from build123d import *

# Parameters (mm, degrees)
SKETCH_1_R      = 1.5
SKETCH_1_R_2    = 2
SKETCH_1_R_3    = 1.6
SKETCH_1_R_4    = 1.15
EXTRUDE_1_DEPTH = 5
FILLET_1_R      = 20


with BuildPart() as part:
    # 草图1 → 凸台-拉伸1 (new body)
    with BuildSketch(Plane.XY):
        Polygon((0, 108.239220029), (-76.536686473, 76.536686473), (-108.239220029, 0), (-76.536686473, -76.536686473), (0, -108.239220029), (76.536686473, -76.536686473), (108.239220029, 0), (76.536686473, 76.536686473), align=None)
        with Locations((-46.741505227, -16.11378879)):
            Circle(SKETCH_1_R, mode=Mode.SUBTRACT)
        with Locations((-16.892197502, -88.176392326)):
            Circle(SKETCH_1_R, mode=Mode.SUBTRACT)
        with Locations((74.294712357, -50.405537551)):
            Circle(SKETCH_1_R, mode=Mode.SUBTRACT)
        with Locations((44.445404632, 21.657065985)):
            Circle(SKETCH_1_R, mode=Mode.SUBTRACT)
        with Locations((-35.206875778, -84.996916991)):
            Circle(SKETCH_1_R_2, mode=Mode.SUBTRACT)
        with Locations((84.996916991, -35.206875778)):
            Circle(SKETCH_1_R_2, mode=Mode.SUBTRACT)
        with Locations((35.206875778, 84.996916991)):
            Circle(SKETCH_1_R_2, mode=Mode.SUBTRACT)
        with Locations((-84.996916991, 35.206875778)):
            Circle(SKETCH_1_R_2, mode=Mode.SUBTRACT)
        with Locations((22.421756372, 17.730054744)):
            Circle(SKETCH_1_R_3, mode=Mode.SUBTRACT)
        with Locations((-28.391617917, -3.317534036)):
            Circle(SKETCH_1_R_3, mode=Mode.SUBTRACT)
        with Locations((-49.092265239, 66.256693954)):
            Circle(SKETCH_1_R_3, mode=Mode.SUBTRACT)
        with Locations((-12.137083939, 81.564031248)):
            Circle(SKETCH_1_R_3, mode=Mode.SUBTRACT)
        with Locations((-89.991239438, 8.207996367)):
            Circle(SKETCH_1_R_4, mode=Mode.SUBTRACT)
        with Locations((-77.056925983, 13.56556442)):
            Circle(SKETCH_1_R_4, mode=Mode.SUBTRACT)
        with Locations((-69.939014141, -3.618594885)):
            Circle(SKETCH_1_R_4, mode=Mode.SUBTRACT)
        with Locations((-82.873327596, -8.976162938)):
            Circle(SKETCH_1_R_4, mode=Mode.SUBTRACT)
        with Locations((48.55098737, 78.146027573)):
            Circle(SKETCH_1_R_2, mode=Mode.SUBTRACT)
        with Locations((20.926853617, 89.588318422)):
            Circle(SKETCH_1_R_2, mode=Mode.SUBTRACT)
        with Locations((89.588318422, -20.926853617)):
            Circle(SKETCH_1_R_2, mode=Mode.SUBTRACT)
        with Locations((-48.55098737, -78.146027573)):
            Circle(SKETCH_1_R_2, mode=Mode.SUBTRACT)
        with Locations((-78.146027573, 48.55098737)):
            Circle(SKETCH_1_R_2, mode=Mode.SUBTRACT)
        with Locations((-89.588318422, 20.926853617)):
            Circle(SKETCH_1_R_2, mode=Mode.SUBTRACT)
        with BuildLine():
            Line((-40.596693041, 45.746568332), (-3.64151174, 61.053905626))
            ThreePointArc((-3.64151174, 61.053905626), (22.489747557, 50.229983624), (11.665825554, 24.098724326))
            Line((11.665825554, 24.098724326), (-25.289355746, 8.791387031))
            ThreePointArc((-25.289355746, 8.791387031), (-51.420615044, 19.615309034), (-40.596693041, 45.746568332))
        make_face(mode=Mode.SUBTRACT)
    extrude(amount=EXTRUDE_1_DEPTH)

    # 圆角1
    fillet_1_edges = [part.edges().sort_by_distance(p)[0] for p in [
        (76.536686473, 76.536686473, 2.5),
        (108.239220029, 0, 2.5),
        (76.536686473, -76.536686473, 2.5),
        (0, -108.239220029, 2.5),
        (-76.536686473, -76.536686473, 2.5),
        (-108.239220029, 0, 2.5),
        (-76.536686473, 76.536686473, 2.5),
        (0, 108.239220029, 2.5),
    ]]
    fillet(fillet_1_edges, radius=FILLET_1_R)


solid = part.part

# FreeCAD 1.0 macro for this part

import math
import FreeCAD as App
import Part
import Sketcher
from FreeCAD import Vector
Q = App.Units.Quantity


def edges_at(feature, points):
    """Names of the edges that pass closest to the given points."""
    edges = feature.Shape.Edges
    near = lambda p: min(range(len(edges)), key=lambda i: edges[i].distToShape(Part.Vertex(*p))[0])
    return sorted({f"Edge{near(p) + 1}" for p in points})

doc = App.newDocument("Part")
body = doc.addObject("PartDesign::Body", "Body")

sketch1 = body.newObject("Sketcher::SketchObject", "Sketch")
sketch1.AttachmentSupport = (doc.getObject("XY_Plane"), [""])
sketch1.MapMode = "FlatFace"
sketch1.addGeometry(Part.LineSegment(Vector(0, 108.2, 0), Vector(-76.5, 76.5, 0)), False)
sketch1.addGeometry(Part.LineSegment(Vector(-76.5, 76.5, 0), Vector(-108.2, 0, 0)), False)
sketch1.addGeometry(Part.LineSegment(Vector(-108.2, 0, 0), Vector(-76.5, -76.5, 0)), False)
sketch1.addGeometry(Part.LineSegment(Vector(-76.5, -76.5, 0), Vector(0, -108.2, 0)), False)
sketch1.addGeometry(Part.LineSegment(Vector(0, -108.2, 0), Vector(76.5, -76.5, 0)), False)
sketch1.addGeometry(Part.LineSegment(Vector(76.5, -76.5, 0), Vector(108.2, 0, 0)), False)
sketch1.addGeometry(Part.LineSegment(Vector(108.2, 0, 0), Vector(76.5, 76.5, 0)), False)
sketch1.addGeometry(Part.LineSegment(Vector(76.5, 76.5, 0), Vector(0, 108.2, 0)), False)
sketch1.addGeometry(Part.Circle(Vector(-48.6, -78.1, 0), Vector(0, 0, 1), 2), False)
sketch1.addGeometry(Part.Circle(Vector(-35.2, -85, 0), Vector(0, 0, 1), 2), False)
sketch1.addGeometry(Part.Circle(Vector(-16.9, -88.2, 0), Vector(0, 0, 1), 1.5), False)
sketch1.addGeometry(Part.Circle(Vector(-82.9, -9, 0), Vector(0, 0, 1), 1.1), False)
sketch1.addGeometry(Part.Circle(Vector(-69.9, -3.6, 0), Vector(0, 0, 1), 1.1), False)
sketch1.addGeometry(Part.Circle(Vector(-46.7, -16.1, 0), Vector(0, 0, 1), 1.5), False)
sketch1.addGeometry(Part.Circle(Vector(-28.4, -3.3, 0), Vector(0, 0, 1), 1.6), False)
sketch1.addGeometry(Part.Circle(Vector(74.3, -50.4, 0), Vector(0, 0, 1), 1.5), False)
sketch1.addGeometry(Part.Circle(Vector(85, -35.2, 0), Vector(0, 0, 1), 2), False)
sketch1.addGeometry(Part.Circle(Vector(89.6, -20.9, 0), Vector(0, 0, 1), 2), False)
sketch1.addGeometry(Part.Circle(Vector(-90, 8.2, 0), Vector(0, 0, 1), 1.1), False)
sketch1.addGeometry(Part.Circle(Vector(-89.6, 20.9, 0), Vector(0, 0, 1), 2), False)
sketch1.addGeometry(Part.Circle(Vector(-77.1, 13.6, 0), Vector(0, 0, 1), 1.1), False)
sketch1.addGeometry(Part.Circle(Vector(-85, 35.2, 0), Vector(0, 0, 1), 2), False)
sketch1.addGeometry(Part.ArcOfCircle(Part.Circle(Vector(-32.9, 27.3, 0), Vector(0, 0, 1), 20), math.radians(113), math.radians(292)), False)
sketch1.addGeometry(Part.LineSegment(Vector(-40.6, 45.7, 0), Vector(-3.6, 61.1, 0)), False)
sketch1.addGeometry(Part.ArcOfCircle(Part.Circle(Vector(4, 42.6, 0), Vector(0, 0, 1), 20), math.radians(-68), math.radians(112)), False)
sketch1.addGeometry(Part.LineSegment(Vector(11.7, 24.1, 0), Vector(-25.3, 8.8, 0)), False)
sketch1.addGeometry(Part.Circle(Vector(-78.1, 48.6, 0), Vector(0, 0, 1), 2), False)
sketch1.addGeometry(Part.Circle(Vector(-49.1, 66.3, 0), Vector(0, 0, 1), 1.6), False)
sketch1.addGeometry(Part.Circle(Vector(-12.1, 81.6, 0), Vector(0, 0, 1), 1.6), False)
sketch1.addGeometry(Part.Circle(Vector(22.4, 17.7, 0), Vector(0, 0, 1), 1.6), False)
sketch1.addGeometry(Part.Circle(Vector(44.4, 21.7, 0), Vector(0, 0, 1), 1.5), False)
sketch1.addGeometry(Part.Circle(Vector(20.9, 89.6, 0), Vector(0, 0, 1), 2), False)
sketch1.addGeometry(Part.Circle(Vector(35.2, 85, 0), Vector(0, 0, 1), 2), False)
sketch1.addGeometry(Part.Circle(Vector(48.6, 78.1, 0), Vector(0, 0, 1), 2), False)
sketch1.addConstraint(Sketcher.Constraint("Coincident", 0, 2, 1, 1))
sketch1.addConstraint(Sketcher.Constraint("Coincident", 1, 2, 2, 1))
sketch1.addConstraint(Sketcher.Constraint("Coincident", 2, 2, 3, 1))
sketch1.addConstraint(Sketcher.Constraint("Coincident", 3, 2, 4, 1))
sketch1.addConstraint(Sketcher.Constraint("Coincident", 4, 2, 5, 1))
sketch1.addConstraint(Sketcher.Constraint("Coincident", 5, 2, 6, 1))
sketch1.addConstraint(Sketcher.Constraint("Coincident", 6, 2, 7, 1))
sketch1.addConstraint(Sketcher.Constraint("Coincident", 7, 2, 0, 1))
sketch1.addConstraint(Sketcher.Constraint("Tangent", 22, 1, 23, 1))
sketch1.addConstraint(Sketcher.Constraint("Tangent", 23, 2, 24, 2))
sketch1.addConstraint(Sketcher.Constraint("Tangent", 24, 1, 25, 1))
sketch1.addConstraint(Sketcher.Constraint("Tangent", 25, 2, 22, 2))
sketch1.addConstraint(Sketcher.Constraint("Equal", 8, 9))
sketch1.addConstraint(Sketcher.Constraint("Equal", 11, 12))
sketch1.addConstraint(Sketcher.Constraint("Equal", 10, 13))
sketch1.addConstraint(Sketcher.Constraint("Equal", 13, 15))
sketch1.addConstraint(Sketcher.Constraint("Equal", 9, 16))
sketch1.addConstraint(Sketcher.Constraint("Equal", 16, 17))
sketch1.addConstraint(Sketcher.Constraint("Equal", 12, 18))
sketch1.addConstraint(Sketcher.Constraint("Equal", 17, 19))
sketch1.addConstraint(Sketcher.Constraint("Equal", 18, 20))
sketch1.addConstraint(Sketcher.Constraint("Equal", 19, 21))
sketch1.addConstraint(Sketcher.Constraint("Equal", 22, 24))
sketch1.addConstraint(Sketcher.Constraint("Equal", 21, 26))
sketch1.addConstraint(Sketcher.Constraint("Equal", 14, 27))
sketch1.addConstraint(Sketcher.Constraint("Equal", 27, 28))
sketch1.addConstraint(Sketcher.Constraint("Equal", 28, 29))
sketch1.addConstraint(Sketcher.Constraint("Equal", 15, 30))
sketch1.addConstraint(Sketcher.Constraint("Equal", 26, 31))
sketch1.addConstraint(Sketcher.Constraint("Equal", 31, 32))
sketch1.addConstraint(Sketcher.Constraint("Equal", 32, 33))
sketch1.addConstraint(Sketcher.Constraint("Symmetric", 17, 3, 19, 3, -1, 1))
sketch1.addConstraint(Sketcher.Constraint("Symmetric", 16, 3, 21, 3, -1, 1))
sketch1.addConstraint(Sketcher.Constraint("Symmetric", 9, 3, 32, 3, -1, 1))
sketch1.addConstraint(Sketcher.Constraint("Symmetric", 8, 3, 33, 3, -1, 1))
sketch1.addConstraint(Sketcher.Constraint("Symmetric", 0, 2, 4, 2, -1, 1))
sketch1.addConstraint(Sketcher.Constraint("Symmetric", 1, 2, 5, 2, -1, 1))
sketch1.addConstraint(Sketcher.Constraint("Symmetric", 2, 2, 6, 2, -1, 1))
sketch1.addConstraint(Sketcher.Constraint("Symmetric", 3, 2, 7, 2, -1, 1))
sketch1.addConstraint(Sketcher.Constraint("Symmetric", 2, 2, 4, 2, -2))
sketch1.addConstraint(Sketcher.Constraint("PointOnObject", 1, 2, -1))
sketch1.addConstraint(Sketcher.Constraint("PointOnObject", 3, 2, -2))
sketch1.addConstraint(Sketcher.Constraint("Perpendicular", 0, 2))
sketch1.addConstraint(Sketcher.Constraint("Perpendicular", 6, 23))
sketch1.addConstraint(Sketcher.Constraint("Equal", 0, 1))
sketch1.addConstraint(Sketcher.Constraint("Diameter", 8, 4.0))
sketch1.addConstraint(Sketcher.Constraint("Diameter", 10, 3.0))
sketch1.addConstraint(Sketcher.Constraint("Radius", 22, 20.0))
sketch1.addConstraint(Sketcher.Constraint("Diameter", 11, 2.3))
sketch1.addConstraint(Sketcher.Constraint("Diameter", 14, 3.2))
sketch1.addConstraint(Sketcher.Constraint("Distance", 23, 40.0))
sketch1.addConstraint(Sketcher.Constraint("Angle", 0, Q("-157.5 deg")))
sketch1.addConstraint(Sketcher.Constraint("DistanceX", 8, 3, 15, 3, 122.8457))
sketch1.addConstraint(Sketcher.Constraint("DistanceX", 16, 3, 17, 3, 4.591401))
sketch1.addConstraint(Sketcher.Constraint("DistanceX", 19, 3, 14, 3, 61.196701))
sketch1.addConstraint(Sketcher.Constraint("DistanceX", 11, 3, 20, 3, 5.816402))
sketch1.addConstraint(Sketcher.Constraint("DistanceX", 20, 3, 22, 3, 44.113902))
sketch1.addConstraint(Sketcher.Constraint("DistanceY", 22, 3, 21, 3, 7.937898))
sketch1.addConstraint(Sketcher.Constraint("DistanceX", 26, 3, 20, 3, 1.089102))
sketch1.addConstraint(Sketcher.Constraint("DistanceX", 24, 3, 29, 3, 18.409599))
sketch1.addConstraint(Sketcher.Constraint("DistanceY", 14, 3, 30, 3, 24.9746))
sketch1.addConstraint(Sketcher.Constraint("DistanceY", 32, 3, 31, 3, 4.591401))
sketch1.addConstraint(Sketcher.Constraint("DistanceY", 26, 3, 0, 2, 27.985699))
sketch1.addConstraint(Sketcher.Constraint("DistanceX", 1, 2, 19, 3, 18.650902))
sketch1.addConstraint(Sketcher.Constraint("DistanceX", 2, 2, 8, 3, 27.985699))
sketch1.addConstraint(Sketcher.Constraint("DistanceY", 31, 3, 7, 2, 18.650902))
sketch1.addConstraint(Sketcher.Constraint("DistanceY", 13, 3, -1, 1, 16.113789))
sketch1.addConstraint(Sketcher.Constraint("DistanceX", -1, 1, 17, 3, 89.588318))
sketch1.addConstraint(Sketcher.Constraint("DistanceX", 18, 3, -1, 1, 89.991239))
sketch1.addConstraint(Sketcher.Constraint("DistanceY", -1, 1, 28, 3, 81.564031))
sketch1.addConstraint(Sketcher.Constraint("DistanceY", -1, 1, 22, 1, 45.746568))
sketch1.addConstraint(Sketcher.Constraint("DistanceX", 23, 2, -1, 1, 3.641512))
sketch1.addConstraint(Sketcher.Constraint("DistanceX", 8, 3, 9, 3, 13.344112))
sketch1.addConstraint(Sketcher.Constraint("DistanceY", 9, 3, 8, 3, 6.850889))
sketch1.addConstraint(Sketcher.Constraint("DistanceX", 9, 3, 10, 3, 18.314678))
sketch1.addConstraint(Sketcher.Constraint("DistanceY", 10, 3, 11, 3, 79.200229))
sketch1.addConstraint(Sketcher.Constraint("DistanceY", 11, 3, 12, 3, 5.357568))
sketch1.addConstraint(Sketcher.Constraint("DistanceX", 12, 3, 9, 3, 34.732138))
sketch1.addConstraint(Sketcher.Constraint("DistanceX", 12, 3, 13, 3, 23.197509))
sketch1.addConstraint(Sketcher.Constraint("DistanceY", 12, 3, 14, 3, 0.301061))
sketch1.addConstraint(Sketcher.Constraint("DistanceY", 9, 3, 15, 3, 34.591379))
sketch1.addConstraint(Sketcher.Constraint("DistanceY", 16, 3, 14, 3, 31.889342))
sketch1.addConstraint(Sketcher.Constraint("DistanceY", 17, 3, 14, 3, 17.60932))
sketch1.addConstraint(Sketcher.Constraint("DistanceY", 11, 3, 18, 3, 17.184159))
sketch1.addConstraint(Sketcher.Constraint("DistanceY", 18, 3, 20, 3, 5.357568))
sketch1.addConstraint(Sketcher.Constraint("DistanceX", 27, 3, 22, 3, 16.149241))
sketch1.addConstraint(Sketcher.Constraint("DistanceY", 21, 3, 27, 3, 31.049818))
sketch1.addConstraint(Sketcher.Constraint("DistanceX", 27, 3, 28, 3, 36.955181))
sketch1.addConstraint(Sketcher.Constraint("DistanceY", 29, 3, 24, 3, 24.84626))
sketch1.addConstraint(Sketcher.Constraint("DistanceX", 29, 3, 30, 3, 22.023648))
sketch1.addConstraint(Sketcher.Constraint("DistanceX", 31, 3, 30, 3, 23.518551))
pad1 = body.newObject("PartDesign::Pad", "Pad")
pad1.Profile = sketch1
pad1.Length = 5
doc.recompute()

fillet = body.newObject("PartDesign::Fillet", "Fillet")
fillet.Base = (pad1, edges_at(pad1, [
    (76.537, 76.537, 2.5),
    (108.239, 0, 2.5),
    (76.537, -76.537, 2.5),
    (0, -108.239, 2.5),
    (-76.537, -76.537, 2.5),
    (-108.239, 0, 2.5),
    (-76.537, 76.537, 2.5),
    (0, 108.239, 2.5),
]))
fillet.Radius = 20

doc.recompute()
